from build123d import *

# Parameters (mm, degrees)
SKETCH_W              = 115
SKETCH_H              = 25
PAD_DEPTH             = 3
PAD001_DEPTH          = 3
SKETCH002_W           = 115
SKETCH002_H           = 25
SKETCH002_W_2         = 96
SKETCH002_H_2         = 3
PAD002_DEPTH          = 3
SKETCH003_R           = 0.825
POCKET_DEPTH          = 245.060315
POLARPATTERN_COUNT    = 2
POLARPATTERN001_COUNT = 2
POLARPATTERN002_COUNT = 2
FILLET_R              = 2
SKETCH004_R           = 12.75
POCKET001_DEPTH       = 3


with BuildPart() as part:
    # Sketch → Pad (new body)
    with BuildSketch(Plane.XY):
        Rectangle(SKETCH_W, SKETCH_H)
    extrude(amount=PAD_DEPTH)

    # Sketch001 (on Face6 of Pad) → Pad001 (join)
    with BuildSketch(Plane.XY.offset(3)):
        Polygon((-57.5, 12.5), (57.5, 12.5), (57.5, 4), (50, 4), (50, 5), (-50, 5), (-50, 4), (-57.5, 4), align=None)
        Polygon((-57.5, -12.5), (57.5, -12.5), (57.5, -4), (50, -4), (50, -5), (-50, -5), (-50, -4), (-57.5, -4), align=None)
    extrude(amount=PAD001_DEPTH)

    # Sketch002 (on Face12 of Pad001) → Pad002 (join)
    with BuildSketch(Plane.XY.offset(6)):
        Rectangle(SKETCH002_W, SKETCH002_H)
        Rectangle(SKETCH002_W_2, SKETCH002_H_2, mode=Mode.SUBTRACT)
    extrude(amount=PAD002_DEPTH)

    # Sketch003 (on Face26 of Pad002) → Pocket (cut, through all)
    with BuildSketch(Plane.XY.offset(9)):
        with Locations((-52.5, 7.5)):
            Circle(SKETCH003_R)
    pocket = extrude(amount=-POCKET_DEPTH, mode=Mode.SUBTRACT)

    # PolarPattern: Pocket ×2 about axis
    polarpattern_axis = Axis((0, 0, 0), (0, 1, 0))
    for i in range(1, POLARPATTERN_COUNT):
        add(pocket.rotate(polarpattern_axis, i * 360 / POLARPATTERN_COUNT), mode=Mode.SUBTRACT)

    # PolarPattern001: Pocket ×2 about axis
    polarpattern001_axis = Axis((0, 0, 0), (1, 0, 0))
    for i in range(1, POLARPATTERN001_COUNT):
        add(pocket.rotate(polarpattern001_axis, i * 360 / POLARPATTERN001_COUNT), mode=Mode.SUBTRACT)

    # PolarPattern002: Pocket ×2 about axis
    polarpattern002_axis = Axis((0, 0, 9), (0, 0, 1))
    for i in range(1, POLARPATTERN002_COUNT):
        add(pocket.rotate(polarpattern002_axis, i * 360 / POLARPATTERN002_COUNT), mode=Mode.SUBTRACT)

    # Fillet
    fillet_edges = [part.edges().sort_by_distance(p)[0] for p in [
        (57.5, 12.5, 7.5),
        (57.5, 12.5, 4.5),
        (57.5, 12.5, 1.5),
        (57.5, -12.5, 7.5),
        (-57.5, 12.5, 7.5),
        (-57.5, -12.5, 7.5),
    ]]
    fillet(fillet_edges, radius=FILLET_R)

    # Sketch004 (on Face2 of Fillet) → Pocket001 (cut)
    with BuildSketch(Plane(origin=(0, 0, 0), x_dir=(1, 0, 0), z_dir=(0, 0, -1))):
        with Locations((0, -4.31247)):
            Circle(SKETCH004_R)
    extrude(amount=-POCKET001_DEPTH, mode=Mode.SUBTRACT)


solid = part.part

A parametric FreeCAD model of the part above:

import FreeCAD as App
import Part
import Sketcher
from FreeCAD import Vector
Q = App.Units.Quantity


def edges_at(feature, points):
    """Names of the edges that pass closest to the given points."""
    edges = feature.Shape.Edges
    near = lambda p: min(range(len(edges)), key=lambda i: edges[i].distToShape(Part.Vertex(*p))[0])
    return sorted({f"Edge{near(p) + 1}" for p in points})


def add_polygon(sketch, points):
    """Adds a closed chain of lines whose ends are joined by coincident constraints."""
    first, n = sketch.GeometryCount, len(points)
    for a, b in zip(points, points[1:] + points[:1]):
        sketch.addGeometry(Part.LineSegment(App.Vector(*a, 0), App.Vector(*b, 0)), False)
    for i in range(n):
        sketch.addConstraint(Sketcher.Constraint("Coincident", first + i, 2, first + (i + 1) % n, 1))

doc = App.newDocument("Part")
body = doc.addObject("PartDesign::Body", "Body")

sketch1 = body.newObject("Sketcher::SketchObject", "Sketch")
sketch1.AttachmentSupport = (doc.getObject("XY_Plane"), [""])
sketch1.MapMode = "FlatFace"
add_polygon(sketch1, [(-58, 12), (-58, -12), (58, -12), (58, 12)])
sketch1.addConstraint(Sketcher.Constraint("Vertical", 0))
sketch1.addConstraint(Sketcher.Constraint("Horizontal", 1))
sketch1.addConstraint(Sketcher.Constraint("Vertical", 2))
sketch1.addConstraint(Sketcher.Constraint("Horizontal", 3))
sketch1.addConstraint(Sketcher.Constraint("Symmetric", 0, 2, 2, 2, -1, 1))
sketch1.addConstraint(Sketcher.Constraint("DistanceX", 1, 1, 1, 2, Q("115 mm")))
sketch1.addConstraint(Sketcher.Constraint("DistanceY", 0, 2, 0, 1, Q("25 mm")))
pad1 = body.newObject("PartDesign::Pad", "Pad")
pad1.Profile = sketch1
pad1.Length = 3

sketch2 = body.newObject("Sketcher::SketchObject", "Sketch001")
sketch2.AttachmentSupport = (doc.getObject("XY_Plane"), [""])
sketch2.MapMode = "FlatFace"
sketch2.AttachmentOffset = App.Placement(Vector(0, 0, 3), App.Rotation())
add_polygon(sketch2, [(57.5, 12.5), (-57.5, 12.5), (-57.5, 4), (-50, 4), (-50, 5), (50, 5), (50, 4), (57.5, 4)])
add_polygon(sketch2, [(-57.5, -12.5), (57.5, -12.5), (57.5, -4), (50, -4), (50, -5), (-50, -5), (-50, -4), (-57.5, -4)])
sketch2.addConstraint(Sketcher.Constraint("Horizontal", 0))
sketch2.addConstraint(Sketcher.Constraint("Vertical", 1))
sketch2.addConstraint(Sketcher.Constraint("Horizontal", 2))
sketch2.addConstraint(Sketcher.Constraint("Vertical", 3))
sketch2.addConstraint(Sketcher.Constraint("Horizontal", 4))
sketch2.addConstraint(Sketcher.Constraint("Vertical", 5))
sketch2.addConstraint(Sketcher.Constraint("Horizontal", 6))
sketch2.addConstraint(Sketcher.Constraint("Vertical", 7))
sketch2.addConstraint(Sketcher.Constraint("Horizontal", 8))
sketch2.addConstraint(Sketcher.Constraint("Vertical", 9))
sketch2.addConstraint(Sketcher.Constraint("Horizontal", 10))
sketch2.addConstraint(Sketcher.Constraint("Vertical", 11))
sketch2.addConstraint(Sketcher.Constraint("Horizontal", 12))
sketch2.addConstraint(Sketcher.Constraint("Vertical", 13))
sketch2.addConstraint(Sketcher.Constraint("Horizontal", 14))
sketch2.addConstraint(Sketcher.Constraint("Vertical", 15))
sketch2.addConstraint(Sketcher.Constraint("Symmetric", 0, 2, 8, 2, -1, 1))
sketch2.addConstraint(Sketcher.Constraint("Symmetric", 2, 2, 10, 2, -1, 1))
sketch2.addConstraint(Sketcher.Constraint("Symmetric", 4, 2, 12, 2, -1, 1))
sketch2.addConstraint(Sketcher.Constraint("Symmetric", 6, 2, 14, 2, -1, 1))
sketch2.addConstraint(Sketcher.Constraint("Symmetric", 2, 2, 5, 2, -2))
sketch2.addConstraint(Sketcher.Constraint("Vertical", 7, 2, 8, 2))
sketch2.addConstraint(Sketcher.Constraint("DistanceX", 0, 2, 0, 1, Q("115 mm")))
sketch2.addConstraint(Sketcher.Constraint("DistanceX", 4, 1, 4, 2, Q("100 mm")))
sketch2.addConstraint(Sketcher.Constraint("DistanceY", 3, 1, 3, 2, Q("1 mm")))
sketch2.addConstraint(Sketcher.Constraint("DistanceY", 1, 2, 1, 1, Q("8.5 mm")))
sketch2.addConstraint(Sketcher.Constraint("DistanceY", -1, 1, 1, 2, Q("4 mm")))
pad2 = body.newObject("PartDesign::Pad", "Pad001")
pad2.Profile = sketch2
pad2.Length = 3

sketch3 = body.newObject("Sketcher::SketchObject", "Sketch002")
sketch3.AttachmentSupport = (doc.getObject("XY_Plane"), [""])
sketch3.MapMode = "FlatFace"
sketch3.AttachmentOffset = App.Placement(Vector(0, 0, 6), App.Rotation())
add_polygon(sketch3, [(-57.5, 12.5), (-57.5, -12.5), (57.5, -12.5), (57.5, 12.5)])
add_polygon(sketch3, [(48, -1.5), (-48, -1.5), (-48, 1.5), (48, 1.5)])
sketch3.addConstraint(Sketcher.Constraint("Vertical", 0))
sketch3.addConstraint(Sketcher.Constraint("Horizontal", 1))
sketch3.addConstraint(Sketcher.Constraint("Vertical", 2))
sketch3.addConstraint(Sketcher.Constraint("Horizontal", 3))
sketch3.addConstraint(Sketcher.Constraint("Horizontal", 4))
sketch3.addConstraint(Sketcher.Constraint("Vertical", 5))
sketch3.addConstraint(Sketcher.Constraint("Horizontal", 6))
sketch3.addConstraint(Sketcher.Constraint("Vertical", 7))
sketch3.addConstraint(Sketcher.Constraint("Symmetric", 0, 2, 2, 2, -1, 1))
sketch3.addConstraint(Sketcher.Constraint("Symmetric", 4, 2, 6, 2, -1, 1))
sketch3.addConstraint(Sketcher.Constraint("DistanceX", 1, 1, 1, 2, Q("115 mm")))
sketch3.addConstraint(Sketcher.Constraint("DistanceX", 4, 2, 4, 1, Q("96 mm")))
sketch3.addConstraint(Sketcher.Constraint("DistanceY", 0, 2, 0, 1, Q("25 mm")))
sketch3.addConstraint(Sketcher.Constraint("DistanceY", 5, 1, 5, 2, Q("3 mm")))
pad3 = body.newObject("PartDesign::Pad", "Pad002")
pad3.Profile = sketch3
pad3.Length = 3

sketch4 = body.newObject("Sketcher::SketchObject", "Sketch003")
sketch4.AttachmentSupport = (doc.getObject("XY_Plane"), [""])
sketch4.MapMode = "FlatFace"
sketch4.AttachmentOffset = App.Placement(Vector(0, 0, 9), App.Rotation())
sketch4.addGeometry(Part.Circle(Vector(-52.5, 7.5, 0), Vector(0, 0, 1), 0.8), False)
sketch4.addConstraint(Sketcher.Constraint("Diameter", 0, Q("1.65 mm")))
sketch4.addConstraint(Sketcher.Constraint("DistanceX", 0, 3, -1, 1, Q("52.5 mm")))
sketch4.addConstraint(Sketcher.Constraint("DistanceY", -1, 1, 0, 3, Q("7.5 mm")))
pocket1 = body.newObject("PartDesign::Pocket", "Pocket")
pocket1.Profile = sketch4
pocket1.Type = "ThroughAll"
doc.recompute()

polarpattern = body.newObject("PartDesign::PolarPattern", "PolarPattern")
polarpattern.Originals = [pocket1]
polarpattern.Axis = (doc.getObject("Y_Axis"), [""])
polarpattern.Angle = 360
polarpattern.Occurrences = 2
body.Tip = polarpattern
doc.recompute()

polarpattern2 = body.newObject("PartDesign::PolarPattern", "PolarPattern001")
polarpattern2.Originals = [pocket1]
polarpattern2.Axis = (doc.getObject("X_Axis"), [""])
polarpattern2.Angle = 360
polarpattern2.Occurrences = 2
body.Tip = polarpattern2
doc.recompute()

polarpattern3 = body.newObject("PartDesign::PolarPattern", "PolarPattern002")
polarpattern3.Originals = [pocket1]
polarpattern3.Axis = (doc.getObject("Z_Axis"), [""])
polarpattern3.Angle = 360
polarpattern3.Occurrences = 2
body.Tip = polarpattern3
doc.recompute()

fillet = body.newObject("PartDesign::Fillet", "Fillet")
fillet.Base = (polarpattern3, edges_at(polarpattern3, [
    (57.5, 12.5, 4.5),
    (57.5, 12.5, 4.5),
    (57.5, 12.5, 4.5),
    (57.5, -12.5, 4.5),
    (-57.5, 12.5, 4.5),
    (-57.5, -12.5, 4.5),
]))
fillet.Radius = 2

sketch5 = body.newObject("Sketcher::SketchObject", "Sketch004")
sketch5.AttachmentSupport = (doc.getObject("XY_Plane"), [""])
sketch5.MapMode = "FlatFace"
sketch5.addGeometry(Part.Circle(Vector(0, 4, 0), Vector(0, 0, 1), 13), False)
sketch5.addConstraint(Sketcher.Constraint("PointOnObject", 0, 3, -2))
sketch5.addConstraint(Sketcher.Constraint("Diameter", 0, Q("25.5 mm")))
sketch5.addConstraint(Sketcher.Constraint("DistanceY", -1, 1, 0, 3, Q("4.31247 mm")))
pocket2 = body.newObject("PartDesign::Pocket", "Pocket001")
pocket2.Profile = sketch5
pocket2.Length = 3
pocket2.Reversed = True

doc.recompute()
